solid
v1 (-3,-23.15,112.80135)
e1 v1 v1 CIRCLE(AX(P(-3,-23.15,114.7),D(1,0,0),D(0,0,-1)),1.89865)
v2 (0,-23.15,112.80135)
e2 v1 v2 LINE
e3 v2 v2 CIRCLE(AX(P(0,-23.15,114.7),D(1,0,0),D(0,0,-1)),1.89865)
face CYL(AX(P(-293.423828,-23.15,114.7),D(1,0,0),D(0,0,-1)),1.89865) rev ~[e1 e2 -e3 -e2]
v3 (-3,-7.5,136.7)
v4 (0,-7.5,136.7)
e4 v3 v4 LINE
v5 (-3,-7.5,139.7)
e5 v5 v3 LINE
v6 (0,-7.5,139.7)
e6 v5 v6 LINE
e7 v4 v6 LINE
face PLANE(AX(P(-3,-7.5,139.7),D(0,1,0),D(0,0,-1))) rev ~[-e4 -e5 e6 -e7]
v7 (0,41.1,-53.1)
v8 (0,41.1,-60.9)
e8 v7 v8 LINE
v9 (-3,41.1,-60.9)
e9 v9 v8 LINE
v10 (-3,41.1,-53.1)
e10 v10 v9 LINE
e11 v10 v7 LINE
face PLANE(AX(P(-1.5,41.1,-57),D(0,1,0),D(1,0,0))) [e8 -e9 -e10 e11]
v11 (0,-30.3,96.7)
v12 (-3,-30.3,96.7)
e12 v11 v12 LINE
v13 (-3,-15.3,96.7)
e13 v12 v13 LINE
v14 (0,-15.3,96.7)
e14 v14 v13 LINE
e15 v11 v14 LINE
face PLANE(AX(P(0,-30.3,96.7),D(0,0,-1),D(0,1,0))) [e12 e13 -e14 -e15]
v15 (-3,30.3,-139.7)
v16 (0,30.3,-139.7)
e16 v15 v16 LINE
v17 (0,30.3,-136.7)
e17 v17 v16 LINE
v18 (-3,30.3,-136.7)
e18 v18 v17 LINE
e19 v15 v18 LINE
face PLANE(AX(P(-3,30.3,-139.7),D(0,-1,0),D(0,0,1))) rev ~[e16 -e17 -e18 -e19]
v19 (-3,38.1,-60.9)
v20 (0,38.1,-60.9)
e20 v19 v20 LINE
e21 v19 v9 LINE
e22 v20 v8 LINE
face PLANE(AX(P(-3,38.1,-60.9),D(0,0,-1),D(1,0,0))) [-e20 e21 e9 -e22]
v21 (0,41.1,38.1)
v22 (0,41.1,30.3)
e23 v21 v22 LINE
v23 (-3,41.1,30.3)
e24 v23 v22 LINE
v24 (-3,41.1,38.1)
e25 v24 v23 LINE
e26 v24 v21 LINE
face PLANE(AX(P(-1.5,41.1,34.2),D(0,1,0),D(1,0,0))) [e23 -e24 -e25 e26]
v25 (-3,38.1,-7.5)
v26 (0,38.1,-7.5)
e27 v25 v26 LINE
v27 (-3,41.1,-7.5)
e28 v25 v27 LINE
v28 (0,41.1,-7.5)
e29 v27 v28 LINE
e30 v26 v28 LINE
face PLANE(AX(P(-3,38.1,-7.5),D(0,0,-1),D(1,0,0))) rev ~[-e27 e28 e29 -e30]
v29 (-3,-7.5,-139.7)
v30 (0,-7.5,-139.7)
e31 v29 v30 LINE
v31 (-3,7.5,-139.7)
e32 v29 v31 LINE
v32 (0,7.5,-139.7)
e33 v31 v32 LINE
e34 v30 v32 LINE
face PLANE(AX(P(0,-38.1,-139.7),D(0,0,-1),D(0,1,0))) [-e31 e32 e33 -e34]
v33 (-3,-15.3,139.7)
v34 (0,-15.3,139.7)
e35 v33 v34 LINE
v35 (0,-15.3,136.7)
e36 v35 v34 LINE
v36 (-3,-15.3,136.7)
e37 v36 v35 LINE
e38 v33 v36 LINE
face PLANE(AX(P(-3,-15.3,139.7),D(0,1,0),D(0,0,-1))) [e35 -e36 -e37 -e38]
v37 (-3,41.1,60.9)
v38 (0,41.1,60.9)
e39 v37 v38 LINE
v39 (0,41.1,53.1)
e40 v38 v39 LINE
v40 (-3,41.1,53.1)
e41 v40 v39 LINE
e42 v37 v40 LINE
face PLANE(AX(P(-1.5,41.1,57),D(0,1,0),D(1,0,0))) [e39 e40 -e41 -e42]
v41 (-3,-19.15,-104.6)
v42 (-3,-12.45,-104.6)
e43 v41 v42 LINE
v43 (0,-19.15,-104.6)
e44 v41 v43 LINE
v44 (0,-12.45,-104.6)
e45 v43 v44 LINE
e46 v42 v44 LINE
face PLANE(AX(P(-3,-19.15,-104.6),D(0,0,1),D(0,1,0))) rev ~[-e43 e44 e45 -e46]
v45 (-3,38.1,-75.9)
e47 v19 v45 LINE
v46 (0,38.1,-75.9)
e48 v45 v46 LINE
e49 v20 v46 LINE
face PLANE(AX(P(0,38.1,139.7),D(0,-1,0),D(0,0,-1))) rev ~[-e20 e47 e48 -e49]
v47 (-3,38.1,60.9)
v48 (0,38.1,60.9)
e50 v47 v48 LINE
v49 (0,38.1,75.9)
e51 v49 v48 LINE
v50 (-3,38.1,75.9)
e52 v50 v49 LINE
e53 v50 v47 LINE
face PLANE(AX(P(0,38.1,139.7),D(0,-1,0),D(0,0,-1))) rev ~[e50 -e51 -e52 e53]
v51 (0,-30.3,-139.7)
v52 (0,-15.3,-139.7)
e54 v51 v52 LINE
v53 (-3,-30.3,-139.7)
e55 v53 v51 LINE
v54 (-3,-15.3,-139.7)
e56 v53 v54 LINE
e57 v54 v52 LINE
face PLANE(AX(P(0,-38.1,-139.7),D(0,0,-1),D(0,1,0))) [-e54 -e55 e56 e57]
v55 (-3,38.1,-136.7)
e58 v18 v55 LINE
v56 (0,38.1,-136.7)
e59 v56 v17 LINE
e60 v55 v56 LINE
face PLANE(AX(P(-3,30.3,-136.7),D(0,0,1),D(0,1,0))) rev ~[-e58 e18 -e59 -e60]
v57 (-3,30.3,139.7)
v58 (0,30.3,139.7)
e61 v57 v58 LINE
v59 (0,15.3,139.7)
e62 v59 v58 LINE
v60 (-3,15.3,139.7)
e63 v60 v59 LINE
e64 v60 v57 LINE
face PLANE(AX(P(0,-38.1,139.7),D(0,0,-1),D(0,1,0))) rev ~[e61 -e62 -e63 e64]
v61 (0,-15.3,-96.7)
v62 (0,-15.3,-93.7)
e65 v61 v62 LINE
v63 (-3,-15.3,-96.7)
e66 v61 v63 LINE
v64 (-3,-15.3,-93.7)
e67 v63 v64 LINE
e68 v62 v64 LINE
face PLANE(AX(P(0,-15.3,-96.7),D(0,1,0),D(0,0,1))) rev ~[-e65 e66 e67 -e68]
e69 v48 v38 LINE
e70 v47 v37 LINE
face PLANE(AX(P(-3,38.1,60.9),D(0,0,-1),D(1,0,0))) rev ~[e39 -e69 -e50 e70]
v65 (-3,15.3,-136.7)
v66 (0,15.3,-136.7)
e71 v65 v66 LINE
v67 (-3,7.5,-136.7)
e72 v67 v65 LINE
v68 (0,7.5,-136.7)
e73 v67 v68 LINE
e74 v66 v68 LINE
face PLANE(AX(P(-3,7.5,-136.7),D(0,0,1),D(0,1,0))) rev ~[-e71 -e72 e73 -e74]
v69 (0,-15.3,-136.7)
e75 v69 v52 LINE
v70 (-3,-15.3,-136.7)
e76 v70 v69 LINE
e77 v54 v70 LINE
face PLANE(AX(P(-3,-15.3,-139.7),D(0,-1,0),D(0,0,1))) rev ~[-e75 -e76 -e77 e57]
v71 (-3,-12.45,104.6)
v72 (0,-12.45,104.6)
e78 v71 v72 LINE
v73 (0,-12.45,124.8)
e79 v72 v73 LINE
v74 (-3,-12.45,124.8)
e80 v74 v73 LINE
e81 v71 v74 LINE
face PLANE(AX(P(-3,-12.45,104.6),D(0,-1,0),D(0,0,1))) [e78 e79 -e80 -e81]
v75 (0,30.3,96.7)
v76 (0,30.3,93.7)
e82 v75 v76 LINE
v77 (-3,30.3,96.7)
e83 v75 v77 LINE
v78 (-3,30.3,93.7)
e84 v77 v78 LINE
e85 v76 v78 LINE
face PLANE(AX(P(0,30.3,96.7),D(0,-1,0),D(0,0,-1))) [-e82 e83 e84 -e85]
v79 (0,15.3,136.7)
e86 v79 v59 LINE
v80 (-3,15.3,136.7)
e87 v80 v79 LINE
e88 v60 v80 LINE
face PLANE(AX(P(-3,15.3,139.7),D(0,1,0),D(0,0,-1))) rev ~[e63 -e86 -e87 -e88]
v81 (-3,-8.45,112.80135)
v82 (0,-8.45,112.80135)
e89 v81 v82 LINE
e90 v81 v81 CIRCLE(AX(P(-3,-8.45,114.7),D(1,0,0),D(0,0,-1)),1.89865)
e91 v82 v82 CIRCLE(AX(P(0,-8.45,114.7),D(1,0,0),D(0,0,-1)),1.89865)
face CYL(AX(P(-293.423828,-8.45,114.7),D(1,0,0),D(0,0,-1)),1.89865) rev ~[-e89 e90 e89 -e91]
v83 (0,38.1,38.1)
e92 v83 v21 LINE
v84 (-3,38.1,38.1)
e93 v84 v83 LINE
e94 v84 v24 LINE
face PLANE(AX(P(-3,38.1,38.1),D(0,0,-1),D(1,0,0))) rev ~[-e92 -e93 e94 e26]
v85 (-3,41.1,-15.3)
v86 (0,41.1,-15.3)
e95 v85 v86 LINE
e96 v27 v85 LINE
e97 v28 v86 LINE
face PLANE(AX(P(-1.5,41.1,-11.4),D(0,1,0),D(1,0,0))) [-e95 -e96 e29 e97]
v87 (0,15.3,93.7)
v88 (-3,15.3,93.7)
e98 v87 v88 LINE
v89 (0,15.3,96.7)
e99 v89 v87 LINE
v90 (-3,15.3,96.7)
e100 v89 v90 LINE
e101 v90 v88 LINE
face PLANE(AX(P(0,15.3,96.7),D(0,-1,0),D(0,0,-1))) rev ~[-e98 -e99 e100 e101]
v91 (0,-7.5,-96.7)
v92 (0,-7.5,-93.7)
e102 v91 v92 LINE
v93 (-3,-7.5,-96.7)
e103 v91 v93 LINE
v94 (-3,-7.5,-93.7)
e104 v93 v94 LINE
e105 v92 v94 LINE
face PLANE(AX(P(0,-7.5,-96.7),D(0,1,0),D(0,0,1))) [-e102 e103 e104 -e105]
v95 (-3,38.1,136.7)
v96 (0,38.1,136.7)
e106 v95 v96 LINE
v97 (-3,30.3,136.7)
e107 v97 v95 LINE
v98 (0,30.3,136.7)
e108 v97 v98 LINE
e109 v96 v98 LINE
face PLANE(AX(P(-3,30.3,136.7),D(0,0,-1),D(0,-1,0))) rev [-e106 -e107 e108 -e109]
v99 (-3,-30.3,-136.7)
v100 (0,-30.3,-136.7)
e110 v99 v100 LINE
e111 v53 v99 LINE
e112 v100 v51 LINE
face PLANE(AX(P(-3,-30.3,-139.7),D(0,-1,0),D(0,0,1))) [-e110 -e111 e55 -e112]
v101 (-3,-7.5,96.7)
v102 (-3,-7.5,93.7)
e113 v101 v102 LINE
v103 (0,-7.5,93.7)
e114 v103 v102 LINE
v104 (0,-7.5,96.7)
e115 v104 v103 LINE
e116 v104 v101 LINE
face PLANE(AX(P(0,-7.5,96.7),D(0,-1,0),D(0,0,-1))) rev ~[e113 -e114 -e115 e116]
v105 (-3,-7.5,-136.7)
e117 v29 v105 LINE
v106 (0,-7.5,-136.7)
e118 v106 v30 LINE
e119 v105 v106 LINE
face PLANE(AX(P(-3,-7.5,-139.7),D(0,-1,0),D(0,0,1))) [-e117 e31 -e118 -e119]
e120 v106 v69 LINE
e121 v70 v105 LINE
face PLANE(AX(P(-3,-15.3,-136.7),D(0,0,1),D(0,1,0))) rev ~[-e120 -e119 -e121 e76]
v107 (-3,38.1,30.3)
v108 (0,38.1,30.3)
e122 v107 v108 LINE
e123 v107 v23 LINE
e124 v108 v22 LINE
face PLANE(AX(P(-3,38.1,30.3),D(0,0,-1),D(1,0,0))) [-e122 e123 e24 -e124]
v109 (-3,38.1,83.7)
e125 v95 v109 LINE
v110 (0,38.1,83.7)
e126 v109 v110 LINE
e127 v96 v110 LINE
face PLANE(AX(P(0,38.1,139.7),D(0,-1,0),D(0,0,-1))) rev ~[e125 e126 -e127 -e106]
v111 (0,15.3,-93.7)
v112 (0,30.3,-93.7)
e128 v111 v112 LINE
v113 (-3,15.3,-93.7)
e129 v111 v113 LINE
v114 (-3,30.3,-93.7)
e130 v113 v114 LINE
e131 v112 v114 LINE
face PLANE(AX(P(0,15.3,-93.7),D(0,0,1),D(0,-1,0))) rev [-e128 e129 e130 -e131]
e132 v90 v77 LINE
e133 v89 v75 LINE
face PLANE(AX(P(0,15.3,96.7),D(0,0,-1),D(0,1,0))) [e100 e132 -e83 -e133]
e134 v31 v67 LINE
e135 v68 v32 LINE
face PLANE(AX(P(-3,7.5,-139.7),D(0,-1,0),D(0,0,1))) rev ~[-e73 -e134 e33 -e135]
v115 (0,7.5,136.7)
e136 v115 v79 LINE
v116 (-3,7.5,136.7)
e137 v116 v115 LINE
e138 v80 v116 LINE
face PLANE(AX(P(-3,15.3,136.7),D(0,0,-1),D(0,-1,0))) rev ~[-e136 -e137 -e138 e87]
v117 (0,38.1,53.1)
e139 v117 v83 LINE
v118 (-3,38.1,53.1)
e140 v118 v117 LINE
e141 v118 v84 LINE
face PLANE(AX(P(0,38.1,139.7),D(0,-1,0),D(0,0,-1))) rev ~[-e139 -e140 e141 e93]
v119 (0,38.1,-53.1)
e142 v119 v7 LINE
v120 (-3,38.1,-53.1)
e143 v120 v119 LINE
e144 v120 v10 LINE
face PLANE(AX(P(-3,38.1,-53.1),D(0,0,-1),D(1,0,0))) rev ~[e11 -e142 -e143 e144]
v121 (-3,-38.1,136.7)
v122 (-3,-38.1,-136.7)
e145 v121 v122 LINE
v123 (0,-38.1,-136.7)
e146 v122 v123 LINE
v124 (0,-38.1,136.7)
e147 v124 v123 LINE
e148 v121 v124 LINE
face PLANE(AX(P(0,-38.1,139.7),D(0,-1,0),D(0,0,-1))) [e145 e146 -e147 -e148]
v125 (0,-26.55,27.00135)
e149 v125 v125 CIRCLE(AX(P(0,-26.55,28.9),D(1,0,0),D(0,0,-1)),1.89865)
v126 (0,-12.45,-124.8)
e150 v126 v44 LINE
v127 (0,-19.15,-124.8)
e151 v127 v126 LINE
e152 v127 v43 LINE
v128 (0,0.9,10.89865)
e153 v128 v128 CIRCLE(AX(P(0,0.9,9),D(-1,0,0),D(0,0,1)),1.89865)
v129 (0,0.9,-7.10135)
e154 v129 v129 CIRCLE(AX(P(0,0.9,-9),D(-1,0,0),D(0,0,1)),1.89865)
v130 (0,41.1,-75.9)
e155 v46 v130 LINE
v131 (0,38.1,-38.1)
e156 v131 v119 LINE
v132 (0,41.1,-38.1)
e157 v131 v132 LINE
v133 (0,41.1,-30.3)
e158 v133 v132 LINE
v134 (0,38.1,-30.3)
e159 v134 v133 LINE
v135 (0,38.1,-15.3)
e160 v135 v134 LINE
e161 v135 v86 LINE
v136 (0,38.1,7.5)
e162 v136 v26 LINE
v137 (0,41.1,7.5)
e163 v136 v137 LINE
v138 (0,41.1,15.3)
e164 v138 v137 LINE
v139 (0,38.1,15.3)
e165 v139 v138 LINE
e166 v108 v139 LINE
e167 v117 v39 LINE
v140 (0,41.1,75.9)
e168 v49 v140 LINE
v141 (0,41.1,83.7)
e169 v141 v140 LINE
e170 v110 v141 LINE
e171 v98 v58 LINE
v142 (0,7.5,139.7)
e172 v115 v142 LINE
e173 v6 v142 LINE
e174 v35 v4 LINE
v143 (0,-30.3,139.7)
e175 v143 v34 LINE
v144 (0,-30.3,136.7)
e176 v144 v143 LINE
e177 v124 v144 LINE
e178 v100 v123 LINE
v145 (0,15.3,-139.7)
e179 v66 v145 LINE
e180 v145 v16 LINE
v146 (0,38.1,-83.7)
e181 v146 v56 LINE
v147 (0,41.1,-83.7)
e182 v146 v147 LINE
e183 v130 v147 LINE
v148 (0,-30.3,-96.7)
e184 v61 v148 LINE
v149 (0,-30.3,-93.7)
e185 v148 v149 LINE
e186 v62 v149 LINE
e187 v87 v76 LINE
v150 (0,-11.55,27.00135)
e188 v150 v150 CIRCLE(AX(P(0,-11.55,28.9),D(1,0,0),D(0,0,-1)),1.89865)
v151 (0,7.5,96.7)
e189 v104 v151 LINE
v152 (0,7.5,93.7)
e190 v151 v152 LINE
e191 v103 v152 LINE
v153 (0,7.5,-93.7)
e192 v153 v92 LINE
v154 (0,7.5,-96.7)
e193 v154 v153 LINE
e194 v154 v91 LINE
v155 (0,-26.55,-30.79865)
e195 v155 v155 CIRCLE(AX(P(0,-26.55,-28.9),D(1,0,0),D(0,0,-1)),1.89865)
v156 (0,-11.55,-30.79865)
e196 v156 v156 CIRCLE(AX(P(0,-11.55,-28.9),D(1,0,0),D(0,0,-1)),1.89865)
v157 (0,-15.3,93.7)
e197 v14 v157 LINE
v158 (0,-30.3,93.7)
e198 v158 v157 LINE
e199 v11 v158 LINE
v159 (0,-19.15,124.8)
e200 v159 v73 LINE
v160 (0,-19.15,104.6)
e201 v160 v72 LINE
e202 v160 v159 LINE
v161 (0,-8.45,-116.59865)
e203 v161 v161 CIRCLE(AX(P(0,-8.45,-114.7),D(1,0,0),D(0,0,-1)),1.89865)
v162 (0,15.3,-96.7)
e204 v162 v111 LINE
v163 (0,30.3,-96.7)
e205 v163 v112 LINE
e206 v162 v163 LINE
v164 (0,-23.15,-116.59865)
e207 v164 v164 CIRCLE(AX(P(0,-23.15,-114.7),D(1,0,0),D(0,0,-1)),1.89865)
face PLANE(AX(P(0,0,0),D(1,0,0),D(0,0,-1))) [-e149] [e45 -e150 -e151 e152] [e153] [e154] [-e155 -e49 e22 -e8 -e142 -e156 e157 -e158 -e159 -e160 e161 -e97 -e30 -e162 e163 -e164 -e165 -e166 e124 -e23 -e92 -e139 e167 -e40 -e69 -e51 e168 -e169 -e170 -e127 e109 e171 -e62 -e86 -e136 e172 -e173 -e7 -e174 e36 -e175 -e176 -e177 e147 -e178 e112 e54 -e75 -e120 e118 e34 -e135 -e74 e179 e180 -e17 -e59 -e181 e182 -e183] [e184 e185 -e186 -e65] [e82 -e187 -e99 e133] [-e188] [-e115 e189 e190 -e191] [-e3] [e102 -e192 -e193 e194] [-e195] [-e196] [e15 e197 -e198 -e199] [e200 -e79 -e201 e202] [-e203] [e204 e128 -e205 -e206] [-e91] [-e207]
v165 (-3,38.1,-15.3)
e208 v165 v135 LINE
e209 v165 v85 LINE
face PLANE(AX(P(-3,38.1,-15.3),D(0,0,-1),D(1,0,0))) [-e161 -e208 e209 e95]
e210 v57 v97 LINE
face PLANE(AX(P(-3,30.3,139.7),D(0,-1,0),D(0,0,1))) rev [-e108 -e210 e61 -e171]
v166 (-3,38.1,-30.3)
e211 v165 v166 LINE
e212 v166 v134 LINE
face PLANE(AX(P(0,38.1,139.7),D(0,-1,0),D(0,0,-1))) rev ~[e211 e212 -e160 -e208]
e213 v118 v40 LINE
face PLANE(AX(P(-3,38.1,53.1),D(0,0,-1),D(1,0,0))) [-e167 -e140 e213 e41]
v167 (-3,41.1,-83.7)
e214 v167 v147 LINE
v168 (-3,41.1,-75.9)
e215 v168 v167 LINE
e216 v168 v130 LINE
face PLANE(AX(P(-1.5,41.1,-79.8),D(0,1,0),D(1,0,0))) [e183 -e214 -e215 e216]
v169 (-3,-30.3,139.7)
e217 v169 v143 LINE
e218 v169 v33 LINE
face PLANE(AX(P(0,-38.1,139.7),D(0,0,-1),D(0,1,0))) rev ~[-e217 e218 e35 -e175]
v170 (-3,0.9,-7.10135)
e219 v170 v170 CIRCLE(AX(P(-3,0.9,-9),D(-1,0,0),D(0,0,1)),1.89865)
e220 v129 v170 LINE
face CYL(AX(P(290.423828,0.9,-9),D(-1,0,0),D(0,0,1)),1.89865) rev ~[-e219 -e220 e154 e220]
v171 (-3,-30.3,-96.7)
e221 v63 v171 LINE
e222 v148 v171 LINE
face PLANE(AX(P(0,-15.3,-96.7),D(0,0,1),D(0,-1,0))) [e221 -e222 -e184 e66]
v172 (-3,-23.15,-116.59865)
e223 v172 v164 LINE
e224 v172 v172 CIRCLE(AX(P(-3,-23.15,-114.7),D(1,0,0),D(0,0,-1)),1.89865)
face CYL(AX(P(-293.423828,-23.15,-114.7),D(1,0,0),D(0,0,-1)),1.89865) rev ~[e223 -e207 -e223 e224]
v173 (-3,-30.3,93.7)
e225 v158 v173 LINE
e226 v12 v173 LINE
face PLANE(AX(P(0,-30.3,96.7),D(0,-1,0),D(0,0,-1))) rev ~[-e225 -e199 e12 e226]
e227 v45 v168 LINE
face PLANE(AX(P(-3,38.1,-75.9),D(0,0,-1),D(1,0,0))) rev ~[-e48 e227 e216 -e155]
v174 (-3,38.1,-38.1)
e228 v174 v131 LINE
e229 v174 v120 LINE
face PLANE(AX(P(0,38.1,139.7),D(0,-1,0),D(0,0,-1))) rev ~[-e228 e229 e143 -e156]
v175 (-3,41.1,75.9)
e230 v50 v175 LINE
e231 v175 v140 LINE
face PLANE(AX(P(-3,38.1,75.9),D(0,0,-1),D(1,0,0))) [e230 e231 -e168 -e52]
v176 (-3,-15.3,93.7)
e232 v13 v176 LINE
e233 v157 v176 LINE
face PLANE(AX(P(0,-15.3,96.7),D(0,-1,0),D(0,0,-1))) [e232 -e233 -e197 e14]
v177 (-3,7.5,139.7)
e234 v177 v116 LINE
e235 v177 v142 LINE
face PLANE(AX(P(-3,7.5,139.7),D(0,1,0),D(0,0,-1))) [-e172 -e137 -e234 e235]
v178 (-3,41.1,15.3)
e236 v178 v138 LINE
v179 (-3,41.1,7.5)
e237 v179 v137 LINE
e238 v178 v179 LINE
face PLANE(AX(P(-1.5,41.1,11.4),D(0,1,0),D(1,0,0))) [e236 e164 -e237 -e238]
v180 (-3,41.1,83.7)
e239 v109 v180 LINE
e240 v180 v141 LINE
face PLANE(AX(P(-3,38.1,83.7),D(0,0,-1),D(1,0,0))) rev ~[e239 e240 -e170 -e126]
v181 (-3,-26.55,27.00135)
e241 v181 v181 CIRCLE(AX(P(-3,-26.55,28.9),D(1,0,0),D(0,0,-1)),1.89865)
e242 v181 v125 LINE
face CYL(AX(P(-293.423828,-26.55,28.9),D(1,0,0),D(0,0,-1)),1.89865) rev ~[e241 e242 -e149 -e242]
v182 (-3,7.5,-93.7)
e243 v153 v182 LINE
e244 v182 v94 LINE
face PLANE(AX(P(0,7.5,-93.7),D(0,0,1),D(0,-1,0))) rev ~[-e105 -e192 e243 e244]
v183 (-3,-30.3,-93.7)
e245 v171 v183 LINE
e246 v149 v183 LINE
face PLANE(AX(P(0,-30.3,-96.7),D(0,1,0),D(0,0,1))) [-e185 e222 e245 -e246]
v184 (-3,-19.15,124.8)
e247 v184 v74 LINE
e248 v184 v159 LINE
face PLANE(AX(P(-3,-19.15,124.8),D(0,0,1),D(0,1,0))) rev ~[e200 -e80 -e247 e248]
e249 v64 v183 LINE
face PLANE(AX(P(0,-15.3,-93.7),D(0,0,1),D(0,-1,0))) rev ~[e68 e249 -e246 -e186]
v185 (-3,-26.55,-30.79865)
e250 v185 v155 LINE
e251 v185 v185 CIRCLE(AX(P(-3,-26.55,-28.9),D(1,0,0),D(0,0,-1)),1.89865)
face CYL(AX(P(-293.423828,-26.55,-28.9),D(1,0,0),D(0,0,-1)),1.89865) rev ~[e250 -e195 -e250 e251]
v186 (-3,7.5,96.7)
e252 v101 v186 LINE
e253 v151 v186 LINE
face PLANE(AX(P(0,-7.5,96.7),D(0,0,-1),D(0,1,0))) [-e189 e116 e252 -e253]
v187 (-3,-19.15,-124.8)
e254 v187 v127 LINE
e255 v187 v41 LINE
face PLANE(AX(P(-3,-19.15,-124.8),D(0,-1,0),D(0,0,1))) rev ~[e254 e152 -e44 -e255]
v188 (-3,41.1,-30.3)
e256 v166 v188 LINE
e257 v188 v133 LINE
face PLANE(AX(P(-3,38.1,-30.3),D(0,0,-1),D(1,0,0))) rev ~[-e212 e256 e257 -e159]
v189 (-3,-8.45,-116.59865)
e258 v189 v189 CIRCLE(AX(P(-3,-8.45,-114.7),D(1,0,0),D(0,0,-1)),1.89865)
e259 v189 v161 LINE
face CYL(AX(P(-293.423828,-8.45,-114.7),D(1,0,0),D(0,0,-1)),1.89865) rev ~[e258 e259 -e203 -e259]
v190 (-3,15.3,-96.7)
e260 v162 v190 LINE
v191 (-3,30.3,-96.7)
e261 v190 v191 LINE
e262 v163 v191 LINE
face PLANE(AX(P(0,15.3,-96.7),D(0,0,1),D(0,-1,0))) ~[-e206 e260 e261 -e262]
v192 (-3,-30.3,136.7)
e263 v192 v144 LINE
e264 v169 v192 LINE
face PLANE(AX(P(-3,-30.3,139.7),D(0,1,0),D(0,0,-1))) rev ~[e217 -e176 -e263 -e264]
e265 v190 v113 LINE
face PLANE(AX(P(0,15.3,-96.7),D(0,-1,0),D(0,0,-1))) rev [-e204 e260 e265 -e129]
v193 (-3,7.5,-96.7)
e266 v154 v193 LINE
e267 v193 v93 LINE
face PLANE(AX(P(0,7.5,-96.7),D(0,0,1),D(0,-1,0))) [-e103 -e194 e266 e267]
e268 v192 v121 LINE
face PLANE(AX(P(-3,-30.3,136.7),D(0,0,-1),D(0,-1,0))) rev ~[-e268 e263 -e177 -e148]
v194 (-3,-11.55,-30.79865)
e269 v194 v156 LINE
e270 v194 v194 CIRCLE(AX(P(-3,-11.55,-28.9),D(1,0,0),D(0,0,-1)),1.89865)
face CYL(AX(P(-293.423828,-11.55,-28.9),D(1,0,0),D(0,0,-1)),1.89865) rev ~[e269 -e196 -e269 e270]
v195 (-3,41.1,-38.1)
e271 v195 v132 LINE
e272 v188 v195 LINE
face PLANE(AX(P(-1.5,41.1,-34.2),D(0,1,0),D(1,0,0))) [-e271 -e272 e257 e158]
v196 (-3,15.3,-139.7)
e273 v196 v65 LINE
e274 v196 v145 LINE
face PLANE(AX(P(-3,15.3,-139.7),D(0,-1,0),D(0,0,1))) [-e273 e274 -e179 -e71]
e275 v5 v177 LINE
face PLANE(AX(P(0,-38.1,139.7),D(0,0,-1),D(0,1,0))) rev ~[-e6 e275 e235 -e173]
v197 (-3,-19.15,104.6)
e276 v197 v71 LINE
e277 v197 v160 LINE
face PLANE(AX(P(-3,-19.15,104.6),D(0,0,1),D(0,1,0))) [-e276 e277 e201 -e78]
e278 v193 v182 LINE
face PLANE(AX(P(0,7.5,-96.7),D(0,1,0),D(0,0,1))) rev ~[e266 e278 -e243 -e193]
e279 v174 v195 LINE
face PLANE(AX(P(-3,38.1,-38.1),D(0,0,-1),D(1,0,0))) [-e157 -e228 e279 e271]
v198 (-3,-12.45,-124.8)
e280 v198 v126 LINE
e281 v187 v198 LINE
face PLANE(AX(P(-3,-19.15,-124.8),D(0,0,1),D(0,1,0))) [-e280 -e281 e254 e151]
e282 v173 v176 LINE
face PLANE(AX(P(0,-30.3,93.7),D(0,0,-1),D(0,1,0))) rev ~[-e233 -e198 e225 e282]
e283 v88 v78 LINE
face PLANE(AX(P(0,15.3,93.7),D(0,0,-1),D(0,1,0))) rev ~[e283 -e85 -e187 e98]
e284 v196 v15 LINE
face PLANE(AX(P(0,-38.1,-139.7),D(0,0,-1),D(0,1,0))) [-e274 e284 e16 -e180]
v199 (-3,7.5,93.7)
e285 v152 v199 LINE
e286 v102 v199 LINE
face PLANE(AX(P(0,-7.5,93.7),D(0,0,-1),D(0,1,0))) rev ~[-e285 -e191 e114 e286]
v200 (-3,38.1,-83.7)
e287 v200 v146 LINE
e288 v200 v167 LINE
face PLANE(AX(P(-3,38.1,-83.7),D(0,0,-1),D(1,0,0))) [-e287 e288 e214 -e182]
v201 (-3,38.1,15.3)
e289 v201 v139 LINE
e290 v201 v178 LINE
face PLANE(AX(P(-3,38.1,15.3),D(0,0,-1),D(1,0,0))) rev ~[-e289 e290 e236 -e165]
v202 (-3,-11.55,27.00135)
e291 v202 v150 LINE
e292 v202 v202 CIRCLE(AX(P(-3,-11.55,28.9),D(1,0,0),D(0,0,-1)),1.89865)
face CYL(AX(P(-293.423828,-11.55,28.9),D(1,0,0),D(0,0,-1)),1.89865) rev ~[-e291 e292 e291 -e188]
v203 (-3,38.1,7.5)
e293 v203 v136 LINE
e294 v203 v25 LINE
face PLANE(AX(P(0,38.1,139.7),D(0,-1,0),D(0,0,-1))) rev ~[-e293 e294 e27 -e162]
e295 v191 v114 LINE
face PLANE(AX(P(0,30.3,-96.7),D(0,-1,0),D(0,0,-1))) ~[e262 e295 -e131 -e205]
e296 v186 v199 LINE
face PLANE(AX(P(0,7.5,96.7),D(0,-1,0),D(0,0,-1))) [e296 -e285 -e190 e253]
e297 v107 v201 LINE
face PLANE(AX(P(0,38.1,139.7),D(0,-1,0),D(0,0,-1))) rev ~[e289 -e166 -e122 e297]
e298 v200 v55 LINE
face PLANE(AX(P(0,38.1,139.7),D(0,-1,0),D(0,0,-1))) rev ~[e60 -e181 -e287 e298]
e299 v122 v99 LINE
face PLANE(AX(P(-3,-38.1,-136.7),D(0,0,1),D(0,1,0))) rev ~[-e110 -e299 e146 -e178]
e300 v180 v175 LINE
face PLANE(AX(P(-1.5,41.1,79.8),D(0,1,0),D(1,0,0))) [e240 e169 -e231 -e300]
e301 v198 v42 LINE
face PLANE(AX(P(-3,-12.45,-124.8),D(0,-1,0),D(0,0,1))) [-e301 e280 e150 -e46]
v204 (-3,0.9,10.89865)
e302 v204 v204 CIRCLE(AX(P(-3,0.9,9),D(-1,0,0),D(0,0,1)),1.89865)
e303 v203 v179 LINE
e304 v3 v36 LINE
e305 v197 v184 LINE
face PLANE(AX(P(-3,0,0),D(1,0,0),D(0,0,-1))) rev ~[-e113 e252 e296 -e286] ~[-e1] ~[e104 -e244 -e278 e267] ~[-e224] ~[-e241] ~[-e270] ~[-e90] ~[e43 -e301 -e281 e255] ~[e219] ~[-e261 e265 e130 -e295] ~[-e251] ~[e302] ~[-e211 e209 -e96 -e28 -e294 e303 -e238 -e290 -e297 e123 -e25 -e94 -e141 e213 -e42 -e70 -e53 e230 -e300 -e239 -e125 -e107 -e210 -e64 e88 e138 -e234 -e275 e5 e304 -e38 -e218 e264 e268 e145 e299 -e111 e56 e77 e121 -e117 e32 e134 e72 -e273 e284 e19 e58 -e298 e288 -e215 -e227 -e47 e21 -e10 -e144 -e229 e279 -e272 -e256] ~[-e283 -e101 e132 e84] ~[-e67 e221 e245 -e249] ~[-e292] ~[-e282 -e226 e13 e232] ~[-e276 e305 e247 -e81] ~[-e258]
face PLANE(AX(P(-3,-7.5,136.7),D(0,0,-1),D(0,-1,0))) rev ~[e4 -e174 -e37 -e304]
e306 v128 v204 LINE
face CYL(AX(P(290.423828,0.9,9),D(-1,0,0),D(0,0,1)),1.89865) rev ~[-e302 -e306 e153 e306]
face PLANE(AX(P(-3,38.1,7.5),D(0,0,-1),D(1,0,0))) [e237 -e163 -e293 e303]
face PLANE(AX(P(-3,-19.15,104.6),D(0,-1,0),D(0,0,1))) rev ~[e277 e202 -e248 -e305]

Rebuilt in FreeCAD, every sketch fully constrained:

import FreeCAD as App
import Part
import Sketcher
Q = App.Units.Quantity

doc = App.newDocument("Part")
body = doc.addObject("PartDesign::Body", "Body")

sketch1 = body.newObject("Sketcher::SketchObject", "Sketch")
sketch1.AttachmentSupport = (doc.getObject("YZ_Plane"), [""])
sketch1.MapMode = "FlatFace"
sketch1.addGeometry(Part.LineSegment(App.Vector(38, 140, 0), App.Vector(-38, 140, 0)), False)
sketch1.addGeometry(Part.LineSegment(App.Vector(-38, 140, 0), App.Vector(-38, -140, 0)), False)
sketch1.addGeometry(Part.LineSegment(App.Vector(-38, -140, 0), App.Vector(38, -140, 0)), False)
sketch1.addGeometry(Part.LineSegment(App.Vector(38, -140, 0), App.Vector(38, 140, 0)), False)
sketch1.addConstraint(Sketcher.Constraint("Coincident", 0, 2, 1, 1))
sketch1.addConstraint(Sketcher.Constraint("Coincident", 1, 2, 2, 1))
sketch1.addConstraint(Sketcher.Constraint("Coincident", 2, 2, 3, 1))
sketch1.addConstraint(Sketcher.Constraint("Coincident", 3, 2, 0, 1))
sketch1.addConstraint(Sketcher.Constraint("Horizontal", 0))
sketch1.addConstraint(Sketcher.Constraint("Vertical", 1))
sketch1.addConstraint(Sketcher.Constraint("Horizontal", 2))
sketch1.addConstraint(Sketcher.Constraint("Vertical", 3))
sketch1.addConstraint(Sketcher.Constraint("Symmetric", 0, 2, 2, 2, -1, 1))
sketch1.addConstraint(Sketcher.Constraint("DistanceX", 0, 2, 0, 1, Q("76.2 mm")))
sketch1.addConstraint(Sketcher.Constraint("DistanceY", 1, 2, 1, 1, Q("279.4 mm")))
pad1 = body.newObject("PartDesign::Pad", "Pad")
pad1.Profile = sketch1
pad1.Length = 3
pad1.Reversed = True

sketch2 = body.newObject("Sketcher::SketchObject", "Sketch001")
sketch2.AttachmentSupport = (doc.getObject("YZ_Plane"), [""])
sketch2.MapMode = "FlatFace"
sketch2.AttachmentOffset = App.Placement(App.Vector(0, 0, -3), App.Rotation())
sketch2.addGeometry(Part.LineSegment(App.Vector(38.1, -139.7, 0), App.Vector(30.3, -139.7, 0)), False)
sketch2.addGeometry(Part.LineSegment(App.Vector(30.3, -139.7, 0), App.Vector(30.3, -136.7, 0)), False)
sketch2.addGeometry(Part.LineSegment(App.Vector(30.3, -136.7, 0), App.Vector(38.1, -136.7, 0)), False)
sketch2.addGeometry(Part.LineSegment(App.Vector(38.1, -136.7, 0), App.Vector(38.1, -139.7, 0)), False)
sketch2.addConstraint(Sketcher.Constraint("Coincident", 0, 2, 1, 1))
sketch2.addConstraint(Sketcher.Constraint("Coincident", 1, 2, 2, 1))
sketch2.addConstraint(Sketcher.Constraint("Coincident", 2, 2, 3, 1))
sketch2.addConstraint(Sketcher.Constraint("Coincident", 3, 2, 0, 1))
sketch2.addConstraint(Sketcher.Constraint("Horizontal", 0))
sketch2.addConstraint(Sketcher.Constraint("Vertical", 1))
sketch2.addConstraint(Sketcher.Constraint("Horizontal", 2))
sketch2.addConstraint(Sketcher.Constraint("Vertical", 3))
sketch2.addConstraint(Sketcher.Constraint("DistanceY", 1, 1, 1, 2, Q("3 mm")))
sketch2.addConstraint(Sketcher.Constraint("DistanceX", 0, 2, 0, 1, Q("7.8 mm")))
sketch2.addConstraint(Sketcher.Constraint("DistanceX", -1, 1, 0, 2, Q("30.3 mm")))
sketch2.addConstraint(Sketcher.Constraint("DistanceY", 0, 2, -1, 1, Q("139.7 mm")))
pocket1 = body.newObject("PartDesign::Pocket", "Pocket")
pocket1.Profile = sketch2
pocket1.Type = "ThroughAll"
pocket1.Reversed = True
doc.recompute()

linearpattern = body.newObject("PartDesign::LinearPattern", "LinearPattern")
linearpattern.Originals = [pocket1]
linearpattern.Direction = (doc.getObject("Y_Axis"), [""])
linearpattern.Mode = "offset"
linearpattern.Offset = 22.8
linearpattern.Occurrences = 4
linearpattern.Reversed = True
body.Tip = linearpattern
doc.recompute()

mirrored = body.newObject("PartDesign::Mirrored", "Mirrored")
mirrored.Originals = [pocket1]
mirrored.MirrorPlane = (doc.getObject("XY_Plane"), [""])
body.Tip = mirrored

sketch3 = body.newObject("Sketcher::SketchObject", "Sketch002")
sketch3.AttachmentSupport = (doc.getObject("YZ_Plane"), [""])
sketch3.MapMode = "FlatFace"
sketch3.AttachmentOffset = App.Placement(App.Vector(0, 0, -3), App.Rotation())
sketch3.addGeometry(Part.LineSegment(App.Vector(7.5, 139.7, 0), App.Vector(15.3, 139.7, 0)), False)
sketch3.addGeometry(Part.LineSegment(App.Vector(15.3, 139.7, 0), App.Vector(15.3, 136.7, 0)), False)
sketch3.addGeometry(Part.LineSegment(App.Vector(15.3, 136.7, 0), App.Vector(7.5, 136.7, 0)), False)
sketch3.addGeometry(Part.LineSegment(App.Vector(7.5, 136.7, 0), App.Vector(7.5, 139.7, 0)), False)
sketch3.addConstraint(Sketcher.Constraint("Coincident", 0, 2, 1, 1))
sketch3.addConstraint(Sketcher.Constraint("Coincident", 1, 2, 2, 1))
sketch3.addConstraint(Sketcher.Constraint("Coincident", 2, 2, 3, 1))
sketch3.addConstraint(Sketcher.Constraint("Coincident", 3, 2, 0, 1))
sketch3.addConstraint(Sketcher.Constraint("Horizontal", 0))
sketch3.addConstraint(Sketcher.Constraint("Vertical", 1))
sketch3.addConstraint(Sketcher.Constraint("Horizontal", 2))
sketch3.addConstraint(Sketcher.Constraint("Vertical", 3))
sketch3.addConstraint(Sketcher.Constraint("DistanceY", 1, 2, 1, 1, Q("3 mm")))
sketch3.addConstraint(Sketcher.Constraint("DistanceX", 0, 1, 0, 2, Q("7.8 mm")))
sketch3.addConstraint(Sketcher.Constraint("DistanceX", -1, 1, 0, 2, Q("15.3 mm")))
sketch3.addConstraint(Sketcher.Constraint("DistanceY", -1, 1, 0, 2, Q("139.7 mm")))
pocket2 = body.newObject("PartDesign::Pocket", "Pocket001")
pocket2.Profile = sketch3
pocket2.Type = "ThroughAll"
pocket2.Reversed = True

sketch4 = body.newObject("Sketcher::SketchObject", "Sketch003")
sketch4.AttachmentSupport = (doc.getObject("YZ_Plane"), [""])
sketch4.MapMode = "FlatFace"
sketch4.AttachmentOffset = App.Placement(App.Vector(0, 0, -3), App.Rotation())
sketch4.addGeometry(Part.LineSegment(App.Vector(-15.3, 139.7, 0), App.Vector(-7.5, 139.7, 0)), False)
sketch4.addGeometry(Part.LineSegment(App.Vector(-7.5, 139.7, 0), App.Vector(-7.5, 136.7, 0)), False)
sketch4.addGeometry(Part.LineSegment(App.Vector(-7.5, 136.7, 0), App.Vector(-15.3, 136.7, 0)), False)
sketch4.addGeometry(Part.LineSegment(App.Vector(-15.3, 136.7, 0), App.Vector(-15.3, 139.7, 0)), False)
sketch4.addConstraint(Sketcher.Constraint("Coincident", 0, 2, 1, 1))
sketch4.addConstraint(Sketcher.Constraint("Coincident", 1, 2, 2, 1))
sketch4.addConstraint(Sketcher.Constraint("Coincident", 2, 2, 3, 1))
sketch4.addConstraint(Sketcher.Constraint("Coincident", 3, 2, 0, 1))
sketch4.addConstraint(Sketcher.Constraint("Horizontal", 0))
sketch4.addConstraint(Sketcher.Constraint("Vertical", 1))
sketch4.addConstraint(Sketcher.Constraint("Horizontal", 2))
sketch4.addConstraint(Sketcher.Constraint("Vertical", 3))
sketch4.addConstraint(Sketcher.Constraint("DistanceY", 1, 2, 1, 1, Q("3 mm")))
sketch4.addConstraint(Sketcher.Constraint("DistanceX", 0, 1, 0, 2, Q("7.8 mm")))
sketch4.addConstraint(Sketcher.Constraint("DistanceX", 0, 2, -1, 1, Q("7.5 mm")))
sketch4.addConstraint(Sketcher.Constraint("DistanceY", -1, 1, 0, 2, Q("139.7 mm")))
pocket3 = body.newObject("PartDesign::Pocket", "Pocket002")
pocket3.Profile = sketch4
pocket3.Type = "ThroughAll"
pocket3.Reversed = True

sketch5 = body.newObject("Sketcher::SketchObject", "Sketch004")
sketch5.AttachmentSupport = (doc.getObject("YZ_Plane"), [""])
sketch5.MapMode = "FlatFace"
sketch5.AttachmentOffset = App.Placement(App.Vector(0, 0, -3), App.Rotation())
sketch5.addGeometry(Part.LineSegment(App.Vector(-38.1, 139.7, 0), App.Vector(-30.3, 139.7, 0)), False)
sketch5.addGeometry(Part.LineSegment(App.Vector(-30.3, 139.7, 0), App.Vector(-30.3, 136.7, 0)), False)
sketch5.addGeometry(Part.LineSegment(App.Vector(-30.3, 136.7, 0), App.Vector(-38.1, 136.7, 0)), False)
sketch5.addGeometry(Part.LineSegment(App.Vector(-38.1, 136.7, 0), App.Vector(-38.1, 139.7, 0)), False)
sketch5.addConstraint(Sketcher.Constraint("Coincident", 0, 2, 1, 1))
sketch5.addConstraint(Sketcher.Constraint("Coincident", 1, 2, 2, 1))
sketch5.addConstraint(Sketcher.Constraint("Coincident", 2, 2, 3, 1))
sketch5.addConstraint(Sketcher.Constraint("Coincident", 3, 2, 0, 1))
sketch5.addConstraint(Sketcher.Constraint("Horizontal", 0))
sketch5.addConstraint(Sketcher.Constraint("Vertical", 1))
sketch5.addConstraint(Sketcher.Constraint("Horizontal", 2))
sketch5.addConstraint(Sketcher.Constraint("Vertical", 3))
sketch5.addConstraint(Sketcher.Constraint("DistanceY", 1, 2, 1, 1, Q("3 mm")))
sketch5.addConstraint(Sketcher.Constraint("DistanceX", 0, 1, 0, 2, Q("7.8 mm")))
sketch5.addConstraint(Sketcher.Constraint("DistanceX", 0, 2, -1, 1, Q("30.3 mm")))
sketch5.addConstraint(Sketcher.Constraint("DistanceY", -1, 1, 0, 2, Q("139.7 mm")))
pocket4 = body.newObject("PartDesign::Pocket", "Pocket003")
pocket4.Profile = sketch5
pocket4.Type = "ThroughAll"
pocket4.Reversed = True

sketch6 = body.newObject("Sketcher::SketchObject", "Sketch005")
sketch6.AttachmentSupport = (doc.getObject("YZ_Plane"), [""])
sketch6.MapMode = "FlatFace"
sketch6.addGeometry(Part.LineSegment(App.Vector(30.3, 96.7, 0), App.Vector(15.3, 96.7, 0)), False)
sketch6.addGeometry(Part.LineSegment(App.Vector(15.3, 96.7, 0), App.Vector(15.3, 93.7, 0)), False)
sketch6.addGeometry(Part.LineSegment(App.Vector(15.3, 93.7, 0), App.Vector(30.3, 93.7, 0)), False)
sketch6.addGeometry(Part.LineSegment(App.Vector(30.3, 93.7, 0), App.Vector(30.3, 96.7, 0)), False)
sketch6.addConstraint(Sketcher.Constraint("Coincident", 0, 2, 1, 1))
sketch6.addConstraint(Sketcher.Constraint("Coincident", 1, 2, 2, 1))
sketch6.addConstraint(Sketcher.Constraint("Coincident", 2, 2, 3, 1))
sketch6.addConstraint(Sketcher.Constraint("Coincident", 3, 2, 0, 1))
sketch6.addConstraint(Sketcher.Constraint("Horizontal", 0))
sketch6.addConstraint(Sketcher.Constraint("Vertical", 1))
sketch6.addConstraint(Sketcher.Constraint("Horizontal", 2))
sketch6.addConstraint(Sketcher.Constraint("Vertical", 3))
sketch6.addConstraint(Sketcher.Constraint("DistanceX", 0, 2, 0, 1, Q("15 mm")))
sketch6.addConstraint(Sketcher.Constraint("DistanceY", 1, 2, 1, 1, Q("3 mm")))
sketch6.addConstraint(Sketcher.Constraint("DistanceX", -1, 1, 0, 2, Q("15.3 mm")))
sketch6.addConstraint(Sketcher.Constraint("DistanceY", -1, 1, 0, 2, Q("96.7 mm")))
pocket5 = body.newObject("PartDesign::Pocket", "Pocket004")
pocket5.Profile = sketch6
pocket5.Length = 10
doc.recompute()

linearpattern2 = body.newObject("PartDesign::LinearPattern", "LinearPattern001")
linearpattern2.Originals = [pocket5]
linearpattern2.Direction = (doc.getObject("Y_Axis"), [""])
linearpattern2.Mode = "offset"
linearpattern2.Offset = 22.8
linearpattern2.Occurrences = 3
linearpattern2.Reversed = True
body.Tip = linearpattern2
doc.recompute()

mirrored2 = body.newObject("PartDesign::Mirrored", "Mirrored001")
mirrored2.Originals = [pocket5]
mirrored2.MirrorPlane = (doc.getObject("XY_Plane"), [""])
body.Tip = mirrored2

sketch7 = body.newObject("Sketcher::SketchObject", "Sketch006")
sketch7.AttachmentSupport = (doc.getObject("YZ_Plane"), [""])
sketch7.MapMode = "FlatFace"
sketch7.addGeometry(Part.LineSegment(App.Vector(-7.5, -96.7, 0), App.Vector(7.5, -96.7, 0)), False)
sketch7.addGeometry(Part.LineSegment(App.Vector(7.5, -96.7, 0), App.Vector(7.5, -93.7, 0)), False)
sketch7.addGeometry(Part.LineSegment(App.Vector(7.5, -93.7, 0), App.Vector(-7.5, -93.7, 0)), False)
sketch7.addGeometry(Part.LineSegment(App.Vector(-7.5, -93.7, 0), App.Vector(-7.5, -96.7, 0)), False)
sketch7.addConstraint(Sketcher.Constraint("Coincident", 0, 2, 1, 1))
sketch7.addConstraint(Sketcher.Constraint("Coincident", 1, 2, 2, 1))
sketch7.addConstraint(Sketcher.Constraint("Coincident", 2, 2, 3, 1))
sketch7.addConstraint(Sketcher.Constraint("Coincident", 3, 2, 0, 1))
sketch7.addConstraint(Sketcher.Constraint("Horizontal", 0))
sketch7.addConstraint(Sketcher.Constraint("Vertical", 1))
sketch7.addConstraint(Sketcher.Constraint("Horizontal", 2))
sketch7.addConstraint(Sketcher.Constraint("Vertical", 3))
sketch7.addConstraint(Sketcher.Constraint("DistanceX", 0, 1, 0, 2, Q("15 mm")))
sketch7.addConstraint(Sketcher.Constraint("DistanceY", 1, 1, 1, 2, Q("3 mm")))
sketch7.addConstraint(Sketcher.Constraint("DistanceX", -1, 1, 0, 2, Q("7.5 mm")))
sketch7.addConstraint(Sketcher.Constraint("DistanceY", 0, 2, -1, 1, Q("96.7 mm")))
pocket6 = body.newObject("PartDesign::Pocket", "Pocket005")
pocket6.Profile = sketch7
pocket6.Length = 10

sketch8 = body.newObject("Sketcher::SketchObject", "Sketch007")
sketch8.AttachmentSupport = (doc.getObject("YZ_Plane"), [""])
sketch8.MapMode = "FlatFace"
sketch8.addGeometry(Part.LineSegment(App.Vector(-30.3, -96.7, 0), App.Vector(-15.3, -96.7, 0)), False)
sketch8.addGeometry(Part.LineSegment(App.Vector(-15.3, -96.7, 0), App.Vector(-15.3, -93.7, 0)), False)
sketch8.addGeometry(Part.LineSegment(App.Vector(-15.3, -93.7, 0), App.Vector(-30.3, -93.7, 0)), False)
sketch8.addGeometry(Part.LineSegment(App.Vector(-30.3, -93.7, 0), App.Vector(-30.3, -96.7, 0)), False)
sketch8.addConstraint(Sketcher.Constraint("Coincident", 0, 2, 1, 1))
sketch8.addConstraint(Sketcher.Constraint("Coincident", 1, 2, 2, 1))
sketch8.addConstraint(Sketcher.Constraint("Coincident", 2, 2, 3, 1))
sketch8.addConstraint(Sketcher.Constraint("Coincident", 3, 2, 0, 1))
sketch8.addConstraint(Sketcher.Constraint("Horizontal", 0))
sketch8.addConstraint(Sketcher.Constraint("Vertical", 1))
sketch8.addConstraint(Sketcher.Constraint("Horizontal", 2))
sketch8.addConstraint(Sketcher.Constraint("Vertical", 3))
sketch8.addConstraint(Sketcher.Constraint("DistanceX", 0, 1, 0, 2, Q("15 mm")))
sketch8.addConstraint(Sketcher.Constraint("DistanceY", 1, 1, 1, 2, Q("3 mm")))
sketch8.addConstraint(Sketcher.Constraint("DistanceX", 0, 2, -1, 1, Q("15.3 mm")))
sketch8.addConstraint(Sketcher.Constraint("DistanceY", 0, 2, -1, 1, Q("96.7 mm")))
pocket7 = body.newObject("PartDesign::Pocket", "Pocket006")
pocket7.Profile = sketch8
pocket7.Length = 10

sketch9 = body.newObject("Sketcher::SketchObject", "Sketch008")
sketch9.AttachmentSupport = (doc.getObject("XZ_Plane"), [""])
sketch9.MapMode = "FlatFace"
sketch9.AttachmentOffset = App.Placement(App.Vector(0, 0, -38.1), App.Rotation())
sketch9.addGeometry(Part.LineSegment(App.Vector(-3, 75.9, 0), App.Vector(-3, 83.7, 0)), False)
sketch9.addGeometry(Part.LineSegment(App.Vector(-3, 83.7, 0), App.Vector(0, 83.7, 0)), False)
sketch9.addGeometry(Part.LineSegment(App.Vector(0, 83.7, 0), App.Vector(0, 75.9, 0)), False)
sketch9.addGeometry(Part.LineSegment(App.Vector(0, 75.9, 0), App.Vector(-3, 75.9, 0)), False)
sketch9.addConstraint(Sketcher.Constraint("Coincident", 0, 2, 1, 1))
sketch9.addConstraint(Sketcher.Constraint("Coincident", 1, 2, 2, 1))
sketch9.addConstraint(Sketcher.Constraint("Coincident", 2, 2, 3, 1))
sketch9.addConstraint(Sketcher.Constraint("Coincident", 3, 2, 0, 1))
sketch9.addConstraint(Sketcher.Constraint("Vertical", 0))
sketch9.addConstraint(Sketcher.Constraint("Horizontal", 1))
sketch9.addConstraint(Sketcher.Constraint("Vertical", 2))
sketch9.addConstraint(Sketcher.Constraint("Horizontal", 3))
sketch9.addConstraint(Sketcher.Constraint("PointOnObject", 1, 2, -2))
sketch9.addConstraint(Sketcher.Constraint("DistanceX", 1, 1, 1, 2, Q("3 mm")))
sketch9.addConstraint(Sketcher.Constraint("DistanceY", 0, 1, 0, 2, Q("7.8 mm")))
sketch9.addConstraint(Sketcher.Constraint("DistanceY", -1, 1, 0, 2, Q("83.7 mm")))
pad2 = body.newObject("PartDesign::Pad", "Pad001")
pad2.Profile = sketch9
pad2.Length = 3
pad2.Reversed = True
doc.recompute()

linearpattern3 = body.newObject("PartDesign::LinearPattern", "LinearPattern002")
linearpattern3.Originals = [pad2]
linearpattern3.Direction = (doc.getObject("Z_Axis"), [""])
linearpattern3.Mode = "offset"
linearpattern3.Offset = 22.8
linearpattern3.Occurrences = 8
linearpattern3.Reversed = True
body.Tip = linearpattern3

sketch10 = body.newObject("Sketcher::SketchObject", "Sketch009")
sketch10.AttachmentSupport = (doc.getObject("YZ_Plane"), [""])
sketch10.MapMode = "FlatFace"
sketch10.AttachmentOffset = App.Placement(App.Vector(0, 0, -3), App.Rotation())
sketch10.addGeometry(Part.Circle(App.Vector(-11.6, -28.9, 0), App.Vector(0, 0, 1), 1.9), False)
sketch10.addGeometry(Part.Circle(App.Vector(-26.6, -28.9, 0), App.Vector(0, 0, 1), 1.9), False)
sketch10.addGeometry(Part.Circle(App.Vector(-26.6, 28.9, 0), App.Vector(0, 0, 1), 1.9), False)
sketch10.addGeometry(Part.Circle(App.Vector(-11.6, 28.9, 0), App.Vector(0, 0, 1), 1.9), False)
sketch10.addConstraint(Sketcher.Constraint("Equal", 0, 1))
sketch10.addConstraint(Sketcher.Constraint("Equal", 1, 2))
sketch10.addConstraint(Sketcher.Constraint("Equal", 2, 3))
sketch10.addConstraint(Sketcher.Constraint("Symmetric", 1, 3, 2, 3, -1))
sketch10.addConstraint(Sketcher.Constraint("Symmetric", 0, 3, 3, 3, -1))
sketch10.addConstraint(Sketcher.Constraint("Horizontal", 0, 3, 1, 3))
sketch10.addConstraint(Sketcher.Constraint("DistanceX", 1, 3, 0, 3, Q("15 mm")))
sketch10.addConstraint(Sketcher.Constraint("Diameter", 0, Q("3.7973 mm")))
sketch10.addConstraint(Sketcher.Constraint("DistanceY", 0, 3, -1, 1, Q("28.9 mm")))
sketch10.addConstraint(Sketcher.Constraint("DistanceX", 0, 3, -1, 1, Q("11.55 mm")))
doc.recompute()
hole = body.newObject("PartDesign::Hole", "Hole")
hole.Profile = sketch10
hole.ThreadType = "None"
hole.Diameter = 3.7973
hole.DepthType = "ThroughAll"
hole.Reversed = True

sketch11 = body.newObject("Sketcher::SketchObject", "Sketch010")
sketch11.AttachmentSupport = (doc.getObject("YZ_Plane"), [""])
sketch11.MapMode = "FlatFace"
sketch11.addGeometry(Part.Circle(App.Vector(0.9, 9, 0), App.Vector(0, 0, 1), 1.9), False)
sketch11.addGeometry(Part.Circle(App.Vector(0.9, -9, 0), App.Vector(0, 0, 1), 1.9), False)
sketch11.addConstraint(Sketcher.Constraint("Equal", 0, 1))
sketch11.addConstraint(Sketcher.Constraint("Symmetric", 0, 3, 1, 3, -1))
sketch11.addConstraint(Sketcher.Constraint("DistanceY", -1, 1, 0, 3, Q("9 mm")))
sketch11.addConstraint(Sketcher.Constraint("Diameter", 0, Q("3.7973 mm")))
sketch11.addConstraint(Sketcher.Constraint("DistanceX", -1, 1, 0, 3, Q("0.9 mm")))
doc.recompute()
hole2 = body.newObject("PartDesign::Hole", "Hole001")
hole2.Profile = sketch11
hole2.ThreadType = "None"
hole2.Diameter = 3.7973
hole2.DepthType = "ThroughAll"

sketch12 = body.newObject("Sketcher::SketchObject", "Sketch011")
sketch12.AttachmentSupport = (doc.getObject("YZ_Plane"), [""])
sketch12.MapMode = "FlatFace"
sketch12.AttachmentOffset = App.Placement(App.Vector(0, 0, -3), App.Rotation())
sketch12.addGeometry(Part.LineSegment(App.Vector(-12, 105, 0), App.Vector(-19, 105, 0)), False)
sketch12.addGeometry(Part.LineSegment(App.Vector(-19, 105, 0), App.Vector(-19, 125, 0)), False)
sketch12.addGeometry(Part.LineSegment(App.Vector(-19, 125, 0), App.Vector(-12, 125, 0)), False)
sketch12.addGeometry(Part.LineSegment(App.Vector(-12, 125, 0), App.Vector(-12, 105, 0)), False)
sketch12.addConstraint(Sketcher.Constraint("Coincident", 0, 2, 1, 1))
sketch12.addConstraint(Sketcher.Constraint("Coincident", 1, 2, 2, 1))
sketch12.addConstraint(Sketcher.Constraint("Coincident", 2, 2, 3, 1))
sketch12.addConstraint(Sketcher.Constraint("Coincident", 3, 2, 0, 1))
sketch12.addConstraint(Sketcher.Constraint("Horizontal", 0))
sketch12.addConstraint(Sketcher.Constraint("Vertical", 1))
sketch12.addConstraint(Sketcher.Constraint("Horizontal", 2))
sketch12.addConstraint(Sketcher.Constraint("Vertical", 3))
sketch12.addConstraint(Sketcher.Constraint("DistanceX", 0, 2, 0, 1, Q("6.7 mm")))
sketch12.addConstraint(Sketcher.Constraint("DistanceY", 1, 1, 1, 2, Q("20.2 mm")))
sketch12.addConstraint(Sketcher.Constraint("DistanceY", -1, 1, 0, 2, Q("104.6 mm")))
sketch12.addConstraint(Sketcher.Constraint("DistanceX", 0, 2, -1, 1, Q("19.15 mm")))
pocket8 = body.newObject("PartDesign::Pocket", "Pocket007")
pocket8.Profile = sketch12
pocket8.Type = "UpToFirst"
pocket8.Reversed = True

sketch13 = body.newObject("Sketcher::SketchObject", "Sketch012")
sketch13.AttachmentSupport = (doc.getObject("YZ_Plane"), [""])
sketch13.MapMode = "FlatFace"
sketch13.AttachmentOffset = App.Placement(App.Vector(0, 0, -3), App.Rotation())
sketch13.addGeometry(Part.LineSegment(App.Vector(-12, -125, 0), App.Vector(-19, -125, 0)), False)
sketch13.addGeometry(Part.LineSegment(App.Vector(-19, -125, 0), App.Vector(-19, -105, 0)), False)
sketch13.addGeometry(Part.LineSegment(App.Vector(-19, -105, 0), App.Vector(-12, -105, 0)), False)
sketch13.addGeometry(Part.LineSegment(App.Vector(-12, -105, 0), App.Vector(-12, -125, 0)), False)
sketch13.addConstraint(Sketcher.Constraint("Coincident", 0, 2, 1, 1))
sketch13.addConstraint(Sketcher.Constraint("Coincident", 1, 2, 2, 1))
sketch13.addConstraint(Sketcher.Constraint("Coincident", 2, 2, 3, 1))
sketch13.addConstraint(Sketcher.Constraint("Coincident", 3, 2, 0, 1))
sketch13.addConstraint(Sketcher.Constraint("Horizontal", 0))
sketch13.addConstraint(Sketcher.Constraint("Vertical", 1))
sketch13.addConstraint(Sketcher.Constraint("Horizontal", 2))
sketch13.addConstraint(Sketcher.Constraint("Vertical", 3))
sketch13.addConstraint(Sketcher.Constraint("DistanceX", 0, 2, 0, 1, Q("6.7 mm")))
sketch13.addConstraint(Sketcher.Constraint("DistanceY", 1, 1, 1, 2, Q("20.2 mm")))
sketch13.addConstraint(Sketcher.Constraint("DistanceY", 0, 2, -1, 1, Q("124.8 mm")))
sketch13.addConstraint(Sketcher.Constraint("DistanceX", 0, 2, -1, 1, Q("19.15 mm")))
pocket9 = body.newObject("PartDesign::Pocket", "Pocket008")
pocket9.Profile = sketch13
pocket9.Type = "UpToFirst"
pocket9.Reversed = True

sketch14 = body.newObject("Sketcher::SketchObject", "Sketch013")
sketch14.AttachmentSupport = (doc.getObject("YZ_Plane"), [""])
sketch14.MapMode = "FlatFace"
sketch14.AttachmentOffset = App.Placement(App.Vector(0, 0, -3), App.Rotation())
sketch14.addGeometry(Part.Circle(App.Vector(-8.4, -114.7, 0), App.Vector(0, 0, 1), 1.9), False)
sketch14.addGeometry(Part.Circle(App.Vector(-23.1, -114.7, 0), App.Vector(0, 0, 1), 1.9), False)
sketch14.addGeometry(Part.Circle(App.Vector(-23.1, 114.7, 0), App.Vector(0, 0, 1), 1.9), False)
sketch14.addGeometry(Part.Circle(App.Vector(-8.4, 114.7, 0), App.Vector(0, 0, 1), 1.9), False)
sketch14.addConstraint(Sketcher.Constraint("Equal", 0, 1))
sketch14.addConstraint(Sketcher.Constraint("Equal", 1, 2))
sketch14.addConstraint(Sketcher.Constraint("Equal", 2, 3))
sketch14.addConstraint(Sketcher.Constraint("Symmetric", 1, 3, 2, 3, -1))
sketch14.addConstraint(Sketcher.Constraint("Symmetric", 0, 3, 3, 3, -1))
sketch14.addConstraint(Sketcher.Constraint("Horizontal", 0, 3, 1, 3))
sketch14.addConstraint(Sketcher.Constraint("Diameter", 0, Q("3.7973 mm")))
sketch14.addConstraint(Sketcher.Constraint("DistanceY", 0, 3, -1, 1, Q("114.7 mm")))
sketch14.addConstraint(Sketcher.Constraint("DistanceX", 1, 3, 0, 3, Q("14.7 mm")))
sketch14.addConstraint(Sketcher.Constraint("DistanceX", 0, 3, -1, 1, Q("8.45 mm")))
doc.recompute()
hole3 = body.newObject("PartDesign::Hole", "Hole002")
hole3.Profile = sketch14
hole3.ThreadType = "None"
hole3.Diameter = 3.7973
hole3.DepthType = "ThroughAll"
hole3.Reversed = True

doc.recompute()
